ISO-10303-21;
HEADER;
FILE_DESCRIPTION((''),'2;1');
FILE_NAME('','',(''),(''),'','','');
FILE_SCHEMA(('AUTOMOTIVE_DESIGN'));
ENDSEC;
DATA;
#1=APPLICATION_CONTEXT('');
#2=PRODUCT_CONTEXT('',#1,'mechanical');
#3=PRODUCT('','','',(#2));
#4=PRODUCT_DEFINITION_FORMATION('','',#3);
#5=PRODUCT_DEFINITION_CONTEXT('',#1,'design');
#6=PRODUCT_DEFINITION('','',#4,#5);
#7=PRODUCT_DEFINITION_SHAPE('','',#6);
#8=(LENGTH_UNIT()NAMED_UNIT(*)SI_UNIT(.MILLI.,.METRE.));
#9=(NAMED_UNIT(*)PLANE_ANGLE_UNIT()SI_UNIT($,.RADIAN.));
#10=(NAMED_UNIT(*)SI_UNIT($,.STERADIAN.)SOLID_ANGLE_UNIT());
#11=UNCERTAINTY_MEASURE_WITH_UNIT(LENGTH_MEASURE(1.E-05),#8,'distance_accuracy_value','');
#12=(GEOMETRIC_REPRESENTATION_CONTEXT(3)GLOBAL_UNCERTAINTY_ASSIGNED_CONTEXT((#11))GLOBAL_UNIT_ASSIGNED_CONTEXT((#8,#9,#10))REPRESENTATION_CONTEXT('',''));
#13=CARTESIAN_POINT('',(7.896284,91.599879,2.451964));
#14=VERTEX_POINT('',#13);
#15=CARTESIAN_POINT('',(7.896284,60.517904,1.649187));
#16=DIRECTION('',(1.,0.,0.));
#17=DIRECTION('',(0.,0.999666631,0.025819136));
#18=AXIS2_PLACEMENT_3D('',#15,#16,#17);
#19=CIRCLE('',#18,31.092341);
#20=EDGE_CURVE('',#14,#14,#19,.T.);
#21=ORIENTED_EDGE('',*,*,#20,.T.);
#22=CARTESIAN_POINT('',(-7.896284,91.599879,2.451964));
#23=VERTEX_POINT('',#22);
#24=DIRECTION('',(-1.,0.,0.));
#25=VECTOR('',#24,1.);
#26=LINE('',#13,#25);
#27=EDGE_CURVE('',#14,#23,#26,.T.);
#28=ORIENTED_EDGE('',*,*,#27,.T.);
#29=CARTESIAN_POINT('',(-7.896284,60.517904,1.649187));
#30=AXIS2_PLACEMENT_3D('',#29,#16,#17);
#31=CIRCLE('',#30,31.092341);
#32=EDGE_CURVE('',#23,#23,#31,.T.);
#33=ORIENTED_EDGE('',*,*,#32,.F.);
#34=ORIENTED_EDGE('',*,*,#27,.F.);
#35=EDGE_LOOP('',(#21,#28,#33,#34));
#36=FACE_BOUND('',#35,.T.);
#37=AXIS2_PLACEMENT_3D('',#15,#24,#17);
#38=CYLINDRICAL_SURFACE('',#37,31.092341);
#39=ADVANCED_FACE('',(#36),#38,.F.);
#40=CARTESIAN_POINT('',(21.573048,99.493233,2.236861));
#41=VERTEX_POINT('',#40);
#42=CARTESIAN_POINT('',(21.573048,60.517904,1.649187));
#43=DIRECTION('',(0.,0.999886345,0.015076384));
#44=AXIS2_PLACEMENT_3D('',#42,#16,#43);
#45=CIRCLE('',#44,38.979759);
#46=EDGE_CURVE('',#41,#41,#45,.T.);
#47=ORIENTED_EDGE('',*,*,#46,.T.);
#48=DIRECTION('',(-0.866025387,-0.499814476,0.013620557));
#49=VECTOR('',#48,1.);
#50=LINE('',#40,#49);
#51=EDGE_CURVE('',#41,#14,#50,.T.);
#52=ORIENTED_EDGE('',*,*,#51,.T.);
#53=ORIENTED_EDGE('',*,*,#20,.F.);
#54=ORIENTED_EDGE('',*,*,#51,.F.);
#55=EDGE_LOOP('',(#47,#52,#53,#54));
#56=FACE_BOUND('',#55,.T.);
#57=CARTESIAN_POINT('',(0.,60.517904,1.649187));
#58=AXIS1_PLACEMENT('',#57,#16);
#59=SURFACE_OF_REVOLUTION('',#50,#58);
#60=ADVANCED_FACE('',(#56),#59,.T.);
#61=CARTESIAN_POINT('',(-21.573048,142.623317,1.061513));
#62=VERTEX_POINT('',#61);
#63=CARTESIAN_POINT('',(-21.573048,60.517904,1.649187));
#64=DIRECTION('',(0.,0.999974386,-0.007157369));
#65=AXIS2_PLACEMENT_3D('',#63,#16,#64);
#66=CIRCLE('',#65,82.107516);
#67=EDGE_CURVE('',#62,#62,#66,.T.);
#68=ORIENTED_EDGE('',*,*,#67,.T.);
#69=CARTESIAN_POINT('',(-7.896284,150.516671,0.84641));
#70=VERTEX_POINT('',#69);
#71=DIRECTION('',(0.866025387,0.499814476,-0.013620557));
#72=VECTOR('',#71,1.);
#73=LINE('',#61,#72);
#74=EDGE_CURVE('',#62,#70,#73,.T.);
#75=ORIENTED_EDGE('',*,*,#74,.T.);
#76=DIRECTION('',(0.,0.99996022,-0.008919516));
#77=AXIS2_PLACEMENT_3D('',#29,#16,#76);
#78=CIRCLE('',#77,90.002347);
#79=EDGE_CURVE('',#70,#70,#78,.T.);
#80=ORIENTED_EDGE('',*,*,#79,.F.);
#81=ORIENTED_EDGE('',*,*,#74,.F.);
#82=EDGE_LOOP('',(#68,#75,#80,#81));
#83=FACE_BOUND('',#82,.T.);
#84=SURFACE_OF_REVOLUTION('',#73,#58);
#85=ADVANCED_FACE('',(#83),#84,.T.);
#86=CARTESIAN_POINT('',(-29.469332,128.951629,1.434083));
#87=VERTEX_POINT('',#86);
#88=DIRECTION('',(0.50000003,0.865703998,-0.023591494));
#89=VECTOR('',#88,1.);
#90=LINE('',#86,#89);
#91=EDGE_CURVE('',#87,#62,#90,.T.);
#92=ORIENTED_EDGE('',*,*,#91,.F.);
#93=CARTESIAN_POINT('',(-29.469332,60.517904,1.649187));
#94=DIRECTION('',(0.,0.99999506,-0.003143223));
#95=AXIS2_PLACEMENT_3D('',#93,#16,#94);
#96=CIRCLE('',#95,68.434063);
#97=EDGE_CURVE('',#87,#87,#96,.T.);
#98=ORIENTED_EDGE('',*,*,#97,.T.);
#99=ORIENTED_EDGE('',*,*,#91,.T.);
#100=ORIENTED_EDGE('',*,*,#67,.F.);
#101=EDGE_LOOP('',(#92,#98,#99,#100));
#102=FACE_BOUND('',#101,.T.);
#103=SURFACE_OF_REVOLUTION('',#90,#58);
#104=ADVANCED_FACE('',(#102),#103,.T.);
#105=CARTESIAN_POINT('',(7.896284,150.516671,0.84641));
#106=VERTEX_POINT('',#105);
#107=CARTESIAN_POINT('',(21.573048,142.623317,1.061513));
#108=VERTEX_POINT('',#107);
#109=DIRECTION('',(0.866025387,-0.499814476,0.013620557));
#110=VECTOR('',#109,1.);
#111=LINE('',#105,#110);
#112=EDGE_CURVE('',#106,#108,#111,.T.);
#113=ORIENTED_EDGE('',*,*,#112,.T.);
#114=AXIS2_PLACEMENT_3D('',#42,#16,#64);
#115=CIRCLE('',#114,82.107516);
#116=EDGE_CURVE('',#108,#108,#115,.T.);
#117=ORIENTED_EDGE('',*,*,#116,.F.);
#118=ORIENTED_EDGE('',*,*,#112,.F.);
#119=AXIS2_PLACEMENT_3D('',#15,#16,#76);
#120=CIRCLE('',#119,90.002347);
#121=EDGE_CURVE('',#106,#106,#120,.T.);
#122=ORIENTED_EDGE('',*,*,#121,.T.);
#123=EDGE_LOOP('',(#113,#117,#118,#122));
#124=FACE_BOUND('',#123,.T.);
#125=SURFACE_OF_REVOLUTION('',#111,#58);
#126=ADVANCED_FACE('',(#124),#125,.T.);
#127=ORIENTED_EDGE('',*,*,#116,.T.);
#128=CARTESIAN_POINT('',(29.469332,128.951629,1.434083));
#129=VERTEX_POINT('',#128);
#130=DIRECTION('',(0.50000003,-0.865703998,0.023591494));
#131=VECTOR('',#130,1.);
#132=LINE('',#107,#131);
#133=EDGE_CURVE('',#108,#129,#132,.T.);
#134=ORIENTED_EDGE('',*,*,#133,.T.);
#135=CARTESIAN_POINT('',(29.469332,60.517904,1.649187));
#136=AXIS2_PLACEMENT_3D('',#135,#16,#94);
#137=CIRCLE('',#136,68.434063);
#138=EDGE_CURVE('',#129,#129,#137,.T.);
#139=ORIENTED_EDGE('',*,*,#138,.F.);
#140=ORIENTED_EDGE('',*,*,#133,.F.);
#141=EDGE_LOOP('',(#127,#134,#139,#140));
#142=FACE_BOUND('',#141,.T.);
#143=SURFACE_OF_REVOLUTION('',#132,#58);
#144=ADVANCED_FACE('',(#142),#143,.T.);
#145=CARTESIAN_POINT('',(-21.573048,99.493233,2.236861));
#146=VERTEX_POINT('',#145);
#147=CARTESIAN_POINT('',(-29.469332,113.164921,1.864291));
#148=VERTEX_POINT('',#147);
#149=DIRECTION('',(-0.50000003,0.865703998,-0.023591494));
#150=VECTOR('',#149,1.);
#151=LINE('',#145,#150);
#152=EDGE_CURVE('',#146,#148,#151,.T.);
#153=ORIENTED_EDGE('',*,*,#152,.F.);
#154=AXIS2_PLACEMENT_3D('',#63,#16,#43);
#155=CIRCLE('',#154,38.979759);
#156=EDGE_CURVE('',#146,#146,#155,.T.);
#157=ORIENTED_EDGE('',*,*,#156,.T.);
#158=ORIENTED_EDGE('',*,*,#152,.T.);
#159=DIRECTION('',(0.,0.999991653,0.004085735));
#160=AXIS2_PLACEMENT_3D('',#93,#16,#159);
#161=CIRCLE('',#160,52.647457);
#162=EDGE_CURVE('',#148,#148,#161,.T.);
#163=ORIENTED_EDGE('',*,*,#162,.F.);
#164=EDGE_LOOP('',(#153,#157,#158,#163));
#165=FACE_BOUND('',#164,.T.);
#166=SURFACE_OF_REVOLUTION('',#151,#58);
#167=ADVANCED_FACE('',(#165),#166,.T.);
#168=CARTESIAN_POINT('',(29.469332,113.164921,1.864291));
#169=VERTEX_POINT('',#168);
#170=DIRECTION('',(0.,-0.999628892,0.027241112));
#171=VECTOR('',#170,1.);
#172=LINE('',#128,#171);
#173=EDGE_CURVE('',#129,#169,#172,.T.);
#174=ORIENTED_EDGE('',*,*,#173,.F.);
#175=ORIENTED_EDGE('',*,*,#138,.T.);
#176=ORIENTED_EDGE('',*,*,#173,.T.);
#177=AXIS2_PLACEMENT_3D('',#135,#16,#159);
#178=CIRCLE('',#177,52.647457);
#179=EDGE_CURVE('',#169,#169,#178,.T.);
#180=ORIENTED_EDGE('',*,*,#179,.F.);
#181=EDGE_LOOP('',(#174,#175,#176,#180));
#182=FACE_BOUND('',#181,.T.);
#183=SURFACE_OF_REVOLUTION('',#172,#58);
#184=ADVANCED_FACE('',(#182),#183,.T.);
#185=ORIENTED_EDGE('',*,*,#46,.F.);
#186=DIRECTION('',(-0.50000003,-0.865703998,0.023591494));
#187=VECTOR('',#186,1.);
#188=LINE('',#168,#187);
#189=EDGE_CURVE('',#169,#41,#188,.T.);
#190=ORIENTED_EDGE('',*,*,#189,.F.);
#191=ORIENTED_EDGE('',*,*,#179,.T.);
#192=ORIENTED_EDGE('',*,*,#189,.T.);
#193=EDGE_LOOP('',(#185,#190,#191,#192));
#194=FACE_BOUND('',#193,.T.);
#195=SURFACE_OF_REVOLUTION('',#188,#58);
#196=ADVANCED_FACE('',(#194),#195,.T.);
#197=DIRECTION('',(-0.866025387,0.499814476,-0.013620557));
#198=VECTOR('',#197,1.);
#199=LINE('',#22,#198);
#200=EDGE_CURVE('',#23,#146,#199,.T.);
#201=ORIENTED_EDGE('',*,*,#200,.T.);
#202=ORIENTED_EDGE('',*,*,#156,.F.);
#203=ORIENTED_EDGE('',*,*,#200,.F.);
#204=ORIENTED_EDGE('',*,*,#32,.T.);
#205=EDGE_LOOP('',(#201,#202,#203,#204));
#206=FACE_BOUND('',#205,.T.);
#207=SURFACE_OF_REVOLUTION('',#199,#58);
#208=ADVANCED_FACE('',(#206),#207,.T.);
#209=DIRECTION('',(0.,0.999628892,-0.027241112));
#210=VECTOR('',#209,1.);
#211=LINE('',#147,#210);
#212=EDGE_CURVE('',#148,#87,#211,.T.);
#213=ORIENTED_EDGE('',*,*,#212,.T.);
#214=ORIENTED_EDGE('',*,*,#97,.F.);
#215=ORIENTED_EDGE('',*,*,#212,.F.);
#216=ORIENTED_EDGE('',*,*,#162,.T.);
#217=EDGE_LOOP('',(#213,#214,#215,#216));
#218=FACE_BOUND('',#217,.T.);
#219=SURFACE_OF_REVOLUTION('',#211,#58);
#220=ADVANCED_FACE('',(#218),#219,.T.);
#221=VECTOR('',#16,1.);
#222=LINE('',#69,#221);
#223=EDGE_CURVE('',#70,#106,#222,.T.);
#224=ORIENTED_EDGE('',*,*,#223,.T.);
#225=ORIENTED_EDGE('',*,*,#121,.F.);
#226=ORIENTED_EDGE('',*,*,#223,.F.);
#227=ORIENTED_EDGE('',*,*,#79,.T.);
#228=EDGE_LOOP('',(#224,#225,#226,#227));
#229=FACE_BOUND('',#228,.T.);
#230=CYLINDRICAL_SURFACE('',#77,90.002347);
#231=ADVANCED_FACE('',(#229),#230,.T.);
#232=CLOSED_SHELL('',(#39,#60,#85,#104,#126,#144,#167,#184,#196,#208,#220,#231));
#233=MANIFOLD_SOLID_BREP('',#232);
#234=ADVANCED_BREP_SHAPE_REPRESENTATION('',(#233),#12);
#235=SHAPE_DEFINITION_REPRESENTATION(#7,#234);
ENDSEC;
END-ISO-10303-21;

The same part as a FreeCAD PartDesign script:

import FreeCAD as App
import Part
import Sketcher
from FreeCAD import Vector
Q = App.Units.Quantity


def add_polygon(sketch, points):
    """Adds a closed chain of lines whose ends are joined by coincident constraints."""
    first, n = sketch.GeometryCount, len(points)
    for a, b in zip(points, points[1:] + points[:1]):
        sketch.addGeometry(Part.LineSegment(App.Vector(*a, 0), App.Vector(*b, 0)), False)
    for i in range(n):
        sketch.addConstraint(Sketcher.Constraint("Coincident", first + i, 2, first + (i + 1) % n, 1))

doc = App.newDocument("Part")
body = doc.addObject("PartDesign::Body", "Body")

# Sketch on XY plane
sketch1 = body.newObject("Sketcher::SketchObject", "Sketch")
sketch1.AttachmentSupport = (doc.getObject("XY_Plane"), [""])
sketch1.MapMode = "FlatFace"
add_polygon(sketch1, [(-29, 8), (-29, -8), (-22, -22), (-8, -29), (8, -29), (22, -22), (29, -8), (29, 8), (22, 22), (8, 29), (-8, 29), (-22, 22)])  # lines 0-11
sketch1.addConstraint([
    Sketcher.Constraint("Vertical", 0),
    Sketcher.Constraint("Horizontal", 3),
    Sketcher.Constraint("Vertical", 6),
    Sketcher.Constraint("Horizontal", 9),
    Sketcher.Constraint("Symmetric", 0, 2, 6, 2, -1, 1),
    Sketcher.Constraint("Symmetric", 1, 2, 7, 2, -1, 1),
    Sketcher.Constraint("Symmetric", 2, 2, 8, 2, -1, 1),
    Sketcher.Constraint("Symmetric", 4, 2, 10, 2, -1, 1),
    Sketcher.Constraint("Symmetric", 1, 2, 4, 2, -2),
    Sketcher.Constraint("Perpendicular", 1, 4),
    Sketcher.Constraint("Perpendicular", 2, 5),
    Sketcher.Constraint("Perpendicular", 7, 10),
    Sketcher.Constraint("Perpendicular", 8, 11),
    Sketcher.Constraint("Horizontal", 0, 2, 5, 2),
    Sketcher.Constraint("Equal", 9, 0),
    Sketcher.Constraint("Equal", 1, 2),
    Sketcher.Constraint("Angle", 1, Q("-59.999998 deg")),
    Sketcher.Constraint("DistanceX", 3, 1, 3, 2, 15.792568),
    Sketcher.Constraint("DistanceX", 1, 2, -1, 1, 21.573048),
])

# Sketch on YZ plane
sketch2 = body.newObject("Sketcher::SketchObject", "Sketch001")
sketch2.AttachmentSupport = (doc.getObject("YZ_Plane"), [""])
sketch2.MapMode = "FlatFace"
sketch2.addGeometry(Part.Circle(Vector(61, 2, 0), Vector(0, 0, 1), 61), False)
sketch2.addConstraint([
    Sketcher.Constraint("Diameter", 0, 121.080742),
    Sketcher.Constraint("DistanceX", -1, 1, 0, 3, 60.517904),
    Sketcher.Constraint("DistanceY", -1, 1, 0, 3, 1.649187),
])
doc.recompute()

additivepipe = body.newObject("PartDesign::AdditivePipe", "AdditivePipe")
additivepipe.Profile = sketch1
additivepipe.Spine = (sketch2, ["Edge1"])

doc.recompute()
